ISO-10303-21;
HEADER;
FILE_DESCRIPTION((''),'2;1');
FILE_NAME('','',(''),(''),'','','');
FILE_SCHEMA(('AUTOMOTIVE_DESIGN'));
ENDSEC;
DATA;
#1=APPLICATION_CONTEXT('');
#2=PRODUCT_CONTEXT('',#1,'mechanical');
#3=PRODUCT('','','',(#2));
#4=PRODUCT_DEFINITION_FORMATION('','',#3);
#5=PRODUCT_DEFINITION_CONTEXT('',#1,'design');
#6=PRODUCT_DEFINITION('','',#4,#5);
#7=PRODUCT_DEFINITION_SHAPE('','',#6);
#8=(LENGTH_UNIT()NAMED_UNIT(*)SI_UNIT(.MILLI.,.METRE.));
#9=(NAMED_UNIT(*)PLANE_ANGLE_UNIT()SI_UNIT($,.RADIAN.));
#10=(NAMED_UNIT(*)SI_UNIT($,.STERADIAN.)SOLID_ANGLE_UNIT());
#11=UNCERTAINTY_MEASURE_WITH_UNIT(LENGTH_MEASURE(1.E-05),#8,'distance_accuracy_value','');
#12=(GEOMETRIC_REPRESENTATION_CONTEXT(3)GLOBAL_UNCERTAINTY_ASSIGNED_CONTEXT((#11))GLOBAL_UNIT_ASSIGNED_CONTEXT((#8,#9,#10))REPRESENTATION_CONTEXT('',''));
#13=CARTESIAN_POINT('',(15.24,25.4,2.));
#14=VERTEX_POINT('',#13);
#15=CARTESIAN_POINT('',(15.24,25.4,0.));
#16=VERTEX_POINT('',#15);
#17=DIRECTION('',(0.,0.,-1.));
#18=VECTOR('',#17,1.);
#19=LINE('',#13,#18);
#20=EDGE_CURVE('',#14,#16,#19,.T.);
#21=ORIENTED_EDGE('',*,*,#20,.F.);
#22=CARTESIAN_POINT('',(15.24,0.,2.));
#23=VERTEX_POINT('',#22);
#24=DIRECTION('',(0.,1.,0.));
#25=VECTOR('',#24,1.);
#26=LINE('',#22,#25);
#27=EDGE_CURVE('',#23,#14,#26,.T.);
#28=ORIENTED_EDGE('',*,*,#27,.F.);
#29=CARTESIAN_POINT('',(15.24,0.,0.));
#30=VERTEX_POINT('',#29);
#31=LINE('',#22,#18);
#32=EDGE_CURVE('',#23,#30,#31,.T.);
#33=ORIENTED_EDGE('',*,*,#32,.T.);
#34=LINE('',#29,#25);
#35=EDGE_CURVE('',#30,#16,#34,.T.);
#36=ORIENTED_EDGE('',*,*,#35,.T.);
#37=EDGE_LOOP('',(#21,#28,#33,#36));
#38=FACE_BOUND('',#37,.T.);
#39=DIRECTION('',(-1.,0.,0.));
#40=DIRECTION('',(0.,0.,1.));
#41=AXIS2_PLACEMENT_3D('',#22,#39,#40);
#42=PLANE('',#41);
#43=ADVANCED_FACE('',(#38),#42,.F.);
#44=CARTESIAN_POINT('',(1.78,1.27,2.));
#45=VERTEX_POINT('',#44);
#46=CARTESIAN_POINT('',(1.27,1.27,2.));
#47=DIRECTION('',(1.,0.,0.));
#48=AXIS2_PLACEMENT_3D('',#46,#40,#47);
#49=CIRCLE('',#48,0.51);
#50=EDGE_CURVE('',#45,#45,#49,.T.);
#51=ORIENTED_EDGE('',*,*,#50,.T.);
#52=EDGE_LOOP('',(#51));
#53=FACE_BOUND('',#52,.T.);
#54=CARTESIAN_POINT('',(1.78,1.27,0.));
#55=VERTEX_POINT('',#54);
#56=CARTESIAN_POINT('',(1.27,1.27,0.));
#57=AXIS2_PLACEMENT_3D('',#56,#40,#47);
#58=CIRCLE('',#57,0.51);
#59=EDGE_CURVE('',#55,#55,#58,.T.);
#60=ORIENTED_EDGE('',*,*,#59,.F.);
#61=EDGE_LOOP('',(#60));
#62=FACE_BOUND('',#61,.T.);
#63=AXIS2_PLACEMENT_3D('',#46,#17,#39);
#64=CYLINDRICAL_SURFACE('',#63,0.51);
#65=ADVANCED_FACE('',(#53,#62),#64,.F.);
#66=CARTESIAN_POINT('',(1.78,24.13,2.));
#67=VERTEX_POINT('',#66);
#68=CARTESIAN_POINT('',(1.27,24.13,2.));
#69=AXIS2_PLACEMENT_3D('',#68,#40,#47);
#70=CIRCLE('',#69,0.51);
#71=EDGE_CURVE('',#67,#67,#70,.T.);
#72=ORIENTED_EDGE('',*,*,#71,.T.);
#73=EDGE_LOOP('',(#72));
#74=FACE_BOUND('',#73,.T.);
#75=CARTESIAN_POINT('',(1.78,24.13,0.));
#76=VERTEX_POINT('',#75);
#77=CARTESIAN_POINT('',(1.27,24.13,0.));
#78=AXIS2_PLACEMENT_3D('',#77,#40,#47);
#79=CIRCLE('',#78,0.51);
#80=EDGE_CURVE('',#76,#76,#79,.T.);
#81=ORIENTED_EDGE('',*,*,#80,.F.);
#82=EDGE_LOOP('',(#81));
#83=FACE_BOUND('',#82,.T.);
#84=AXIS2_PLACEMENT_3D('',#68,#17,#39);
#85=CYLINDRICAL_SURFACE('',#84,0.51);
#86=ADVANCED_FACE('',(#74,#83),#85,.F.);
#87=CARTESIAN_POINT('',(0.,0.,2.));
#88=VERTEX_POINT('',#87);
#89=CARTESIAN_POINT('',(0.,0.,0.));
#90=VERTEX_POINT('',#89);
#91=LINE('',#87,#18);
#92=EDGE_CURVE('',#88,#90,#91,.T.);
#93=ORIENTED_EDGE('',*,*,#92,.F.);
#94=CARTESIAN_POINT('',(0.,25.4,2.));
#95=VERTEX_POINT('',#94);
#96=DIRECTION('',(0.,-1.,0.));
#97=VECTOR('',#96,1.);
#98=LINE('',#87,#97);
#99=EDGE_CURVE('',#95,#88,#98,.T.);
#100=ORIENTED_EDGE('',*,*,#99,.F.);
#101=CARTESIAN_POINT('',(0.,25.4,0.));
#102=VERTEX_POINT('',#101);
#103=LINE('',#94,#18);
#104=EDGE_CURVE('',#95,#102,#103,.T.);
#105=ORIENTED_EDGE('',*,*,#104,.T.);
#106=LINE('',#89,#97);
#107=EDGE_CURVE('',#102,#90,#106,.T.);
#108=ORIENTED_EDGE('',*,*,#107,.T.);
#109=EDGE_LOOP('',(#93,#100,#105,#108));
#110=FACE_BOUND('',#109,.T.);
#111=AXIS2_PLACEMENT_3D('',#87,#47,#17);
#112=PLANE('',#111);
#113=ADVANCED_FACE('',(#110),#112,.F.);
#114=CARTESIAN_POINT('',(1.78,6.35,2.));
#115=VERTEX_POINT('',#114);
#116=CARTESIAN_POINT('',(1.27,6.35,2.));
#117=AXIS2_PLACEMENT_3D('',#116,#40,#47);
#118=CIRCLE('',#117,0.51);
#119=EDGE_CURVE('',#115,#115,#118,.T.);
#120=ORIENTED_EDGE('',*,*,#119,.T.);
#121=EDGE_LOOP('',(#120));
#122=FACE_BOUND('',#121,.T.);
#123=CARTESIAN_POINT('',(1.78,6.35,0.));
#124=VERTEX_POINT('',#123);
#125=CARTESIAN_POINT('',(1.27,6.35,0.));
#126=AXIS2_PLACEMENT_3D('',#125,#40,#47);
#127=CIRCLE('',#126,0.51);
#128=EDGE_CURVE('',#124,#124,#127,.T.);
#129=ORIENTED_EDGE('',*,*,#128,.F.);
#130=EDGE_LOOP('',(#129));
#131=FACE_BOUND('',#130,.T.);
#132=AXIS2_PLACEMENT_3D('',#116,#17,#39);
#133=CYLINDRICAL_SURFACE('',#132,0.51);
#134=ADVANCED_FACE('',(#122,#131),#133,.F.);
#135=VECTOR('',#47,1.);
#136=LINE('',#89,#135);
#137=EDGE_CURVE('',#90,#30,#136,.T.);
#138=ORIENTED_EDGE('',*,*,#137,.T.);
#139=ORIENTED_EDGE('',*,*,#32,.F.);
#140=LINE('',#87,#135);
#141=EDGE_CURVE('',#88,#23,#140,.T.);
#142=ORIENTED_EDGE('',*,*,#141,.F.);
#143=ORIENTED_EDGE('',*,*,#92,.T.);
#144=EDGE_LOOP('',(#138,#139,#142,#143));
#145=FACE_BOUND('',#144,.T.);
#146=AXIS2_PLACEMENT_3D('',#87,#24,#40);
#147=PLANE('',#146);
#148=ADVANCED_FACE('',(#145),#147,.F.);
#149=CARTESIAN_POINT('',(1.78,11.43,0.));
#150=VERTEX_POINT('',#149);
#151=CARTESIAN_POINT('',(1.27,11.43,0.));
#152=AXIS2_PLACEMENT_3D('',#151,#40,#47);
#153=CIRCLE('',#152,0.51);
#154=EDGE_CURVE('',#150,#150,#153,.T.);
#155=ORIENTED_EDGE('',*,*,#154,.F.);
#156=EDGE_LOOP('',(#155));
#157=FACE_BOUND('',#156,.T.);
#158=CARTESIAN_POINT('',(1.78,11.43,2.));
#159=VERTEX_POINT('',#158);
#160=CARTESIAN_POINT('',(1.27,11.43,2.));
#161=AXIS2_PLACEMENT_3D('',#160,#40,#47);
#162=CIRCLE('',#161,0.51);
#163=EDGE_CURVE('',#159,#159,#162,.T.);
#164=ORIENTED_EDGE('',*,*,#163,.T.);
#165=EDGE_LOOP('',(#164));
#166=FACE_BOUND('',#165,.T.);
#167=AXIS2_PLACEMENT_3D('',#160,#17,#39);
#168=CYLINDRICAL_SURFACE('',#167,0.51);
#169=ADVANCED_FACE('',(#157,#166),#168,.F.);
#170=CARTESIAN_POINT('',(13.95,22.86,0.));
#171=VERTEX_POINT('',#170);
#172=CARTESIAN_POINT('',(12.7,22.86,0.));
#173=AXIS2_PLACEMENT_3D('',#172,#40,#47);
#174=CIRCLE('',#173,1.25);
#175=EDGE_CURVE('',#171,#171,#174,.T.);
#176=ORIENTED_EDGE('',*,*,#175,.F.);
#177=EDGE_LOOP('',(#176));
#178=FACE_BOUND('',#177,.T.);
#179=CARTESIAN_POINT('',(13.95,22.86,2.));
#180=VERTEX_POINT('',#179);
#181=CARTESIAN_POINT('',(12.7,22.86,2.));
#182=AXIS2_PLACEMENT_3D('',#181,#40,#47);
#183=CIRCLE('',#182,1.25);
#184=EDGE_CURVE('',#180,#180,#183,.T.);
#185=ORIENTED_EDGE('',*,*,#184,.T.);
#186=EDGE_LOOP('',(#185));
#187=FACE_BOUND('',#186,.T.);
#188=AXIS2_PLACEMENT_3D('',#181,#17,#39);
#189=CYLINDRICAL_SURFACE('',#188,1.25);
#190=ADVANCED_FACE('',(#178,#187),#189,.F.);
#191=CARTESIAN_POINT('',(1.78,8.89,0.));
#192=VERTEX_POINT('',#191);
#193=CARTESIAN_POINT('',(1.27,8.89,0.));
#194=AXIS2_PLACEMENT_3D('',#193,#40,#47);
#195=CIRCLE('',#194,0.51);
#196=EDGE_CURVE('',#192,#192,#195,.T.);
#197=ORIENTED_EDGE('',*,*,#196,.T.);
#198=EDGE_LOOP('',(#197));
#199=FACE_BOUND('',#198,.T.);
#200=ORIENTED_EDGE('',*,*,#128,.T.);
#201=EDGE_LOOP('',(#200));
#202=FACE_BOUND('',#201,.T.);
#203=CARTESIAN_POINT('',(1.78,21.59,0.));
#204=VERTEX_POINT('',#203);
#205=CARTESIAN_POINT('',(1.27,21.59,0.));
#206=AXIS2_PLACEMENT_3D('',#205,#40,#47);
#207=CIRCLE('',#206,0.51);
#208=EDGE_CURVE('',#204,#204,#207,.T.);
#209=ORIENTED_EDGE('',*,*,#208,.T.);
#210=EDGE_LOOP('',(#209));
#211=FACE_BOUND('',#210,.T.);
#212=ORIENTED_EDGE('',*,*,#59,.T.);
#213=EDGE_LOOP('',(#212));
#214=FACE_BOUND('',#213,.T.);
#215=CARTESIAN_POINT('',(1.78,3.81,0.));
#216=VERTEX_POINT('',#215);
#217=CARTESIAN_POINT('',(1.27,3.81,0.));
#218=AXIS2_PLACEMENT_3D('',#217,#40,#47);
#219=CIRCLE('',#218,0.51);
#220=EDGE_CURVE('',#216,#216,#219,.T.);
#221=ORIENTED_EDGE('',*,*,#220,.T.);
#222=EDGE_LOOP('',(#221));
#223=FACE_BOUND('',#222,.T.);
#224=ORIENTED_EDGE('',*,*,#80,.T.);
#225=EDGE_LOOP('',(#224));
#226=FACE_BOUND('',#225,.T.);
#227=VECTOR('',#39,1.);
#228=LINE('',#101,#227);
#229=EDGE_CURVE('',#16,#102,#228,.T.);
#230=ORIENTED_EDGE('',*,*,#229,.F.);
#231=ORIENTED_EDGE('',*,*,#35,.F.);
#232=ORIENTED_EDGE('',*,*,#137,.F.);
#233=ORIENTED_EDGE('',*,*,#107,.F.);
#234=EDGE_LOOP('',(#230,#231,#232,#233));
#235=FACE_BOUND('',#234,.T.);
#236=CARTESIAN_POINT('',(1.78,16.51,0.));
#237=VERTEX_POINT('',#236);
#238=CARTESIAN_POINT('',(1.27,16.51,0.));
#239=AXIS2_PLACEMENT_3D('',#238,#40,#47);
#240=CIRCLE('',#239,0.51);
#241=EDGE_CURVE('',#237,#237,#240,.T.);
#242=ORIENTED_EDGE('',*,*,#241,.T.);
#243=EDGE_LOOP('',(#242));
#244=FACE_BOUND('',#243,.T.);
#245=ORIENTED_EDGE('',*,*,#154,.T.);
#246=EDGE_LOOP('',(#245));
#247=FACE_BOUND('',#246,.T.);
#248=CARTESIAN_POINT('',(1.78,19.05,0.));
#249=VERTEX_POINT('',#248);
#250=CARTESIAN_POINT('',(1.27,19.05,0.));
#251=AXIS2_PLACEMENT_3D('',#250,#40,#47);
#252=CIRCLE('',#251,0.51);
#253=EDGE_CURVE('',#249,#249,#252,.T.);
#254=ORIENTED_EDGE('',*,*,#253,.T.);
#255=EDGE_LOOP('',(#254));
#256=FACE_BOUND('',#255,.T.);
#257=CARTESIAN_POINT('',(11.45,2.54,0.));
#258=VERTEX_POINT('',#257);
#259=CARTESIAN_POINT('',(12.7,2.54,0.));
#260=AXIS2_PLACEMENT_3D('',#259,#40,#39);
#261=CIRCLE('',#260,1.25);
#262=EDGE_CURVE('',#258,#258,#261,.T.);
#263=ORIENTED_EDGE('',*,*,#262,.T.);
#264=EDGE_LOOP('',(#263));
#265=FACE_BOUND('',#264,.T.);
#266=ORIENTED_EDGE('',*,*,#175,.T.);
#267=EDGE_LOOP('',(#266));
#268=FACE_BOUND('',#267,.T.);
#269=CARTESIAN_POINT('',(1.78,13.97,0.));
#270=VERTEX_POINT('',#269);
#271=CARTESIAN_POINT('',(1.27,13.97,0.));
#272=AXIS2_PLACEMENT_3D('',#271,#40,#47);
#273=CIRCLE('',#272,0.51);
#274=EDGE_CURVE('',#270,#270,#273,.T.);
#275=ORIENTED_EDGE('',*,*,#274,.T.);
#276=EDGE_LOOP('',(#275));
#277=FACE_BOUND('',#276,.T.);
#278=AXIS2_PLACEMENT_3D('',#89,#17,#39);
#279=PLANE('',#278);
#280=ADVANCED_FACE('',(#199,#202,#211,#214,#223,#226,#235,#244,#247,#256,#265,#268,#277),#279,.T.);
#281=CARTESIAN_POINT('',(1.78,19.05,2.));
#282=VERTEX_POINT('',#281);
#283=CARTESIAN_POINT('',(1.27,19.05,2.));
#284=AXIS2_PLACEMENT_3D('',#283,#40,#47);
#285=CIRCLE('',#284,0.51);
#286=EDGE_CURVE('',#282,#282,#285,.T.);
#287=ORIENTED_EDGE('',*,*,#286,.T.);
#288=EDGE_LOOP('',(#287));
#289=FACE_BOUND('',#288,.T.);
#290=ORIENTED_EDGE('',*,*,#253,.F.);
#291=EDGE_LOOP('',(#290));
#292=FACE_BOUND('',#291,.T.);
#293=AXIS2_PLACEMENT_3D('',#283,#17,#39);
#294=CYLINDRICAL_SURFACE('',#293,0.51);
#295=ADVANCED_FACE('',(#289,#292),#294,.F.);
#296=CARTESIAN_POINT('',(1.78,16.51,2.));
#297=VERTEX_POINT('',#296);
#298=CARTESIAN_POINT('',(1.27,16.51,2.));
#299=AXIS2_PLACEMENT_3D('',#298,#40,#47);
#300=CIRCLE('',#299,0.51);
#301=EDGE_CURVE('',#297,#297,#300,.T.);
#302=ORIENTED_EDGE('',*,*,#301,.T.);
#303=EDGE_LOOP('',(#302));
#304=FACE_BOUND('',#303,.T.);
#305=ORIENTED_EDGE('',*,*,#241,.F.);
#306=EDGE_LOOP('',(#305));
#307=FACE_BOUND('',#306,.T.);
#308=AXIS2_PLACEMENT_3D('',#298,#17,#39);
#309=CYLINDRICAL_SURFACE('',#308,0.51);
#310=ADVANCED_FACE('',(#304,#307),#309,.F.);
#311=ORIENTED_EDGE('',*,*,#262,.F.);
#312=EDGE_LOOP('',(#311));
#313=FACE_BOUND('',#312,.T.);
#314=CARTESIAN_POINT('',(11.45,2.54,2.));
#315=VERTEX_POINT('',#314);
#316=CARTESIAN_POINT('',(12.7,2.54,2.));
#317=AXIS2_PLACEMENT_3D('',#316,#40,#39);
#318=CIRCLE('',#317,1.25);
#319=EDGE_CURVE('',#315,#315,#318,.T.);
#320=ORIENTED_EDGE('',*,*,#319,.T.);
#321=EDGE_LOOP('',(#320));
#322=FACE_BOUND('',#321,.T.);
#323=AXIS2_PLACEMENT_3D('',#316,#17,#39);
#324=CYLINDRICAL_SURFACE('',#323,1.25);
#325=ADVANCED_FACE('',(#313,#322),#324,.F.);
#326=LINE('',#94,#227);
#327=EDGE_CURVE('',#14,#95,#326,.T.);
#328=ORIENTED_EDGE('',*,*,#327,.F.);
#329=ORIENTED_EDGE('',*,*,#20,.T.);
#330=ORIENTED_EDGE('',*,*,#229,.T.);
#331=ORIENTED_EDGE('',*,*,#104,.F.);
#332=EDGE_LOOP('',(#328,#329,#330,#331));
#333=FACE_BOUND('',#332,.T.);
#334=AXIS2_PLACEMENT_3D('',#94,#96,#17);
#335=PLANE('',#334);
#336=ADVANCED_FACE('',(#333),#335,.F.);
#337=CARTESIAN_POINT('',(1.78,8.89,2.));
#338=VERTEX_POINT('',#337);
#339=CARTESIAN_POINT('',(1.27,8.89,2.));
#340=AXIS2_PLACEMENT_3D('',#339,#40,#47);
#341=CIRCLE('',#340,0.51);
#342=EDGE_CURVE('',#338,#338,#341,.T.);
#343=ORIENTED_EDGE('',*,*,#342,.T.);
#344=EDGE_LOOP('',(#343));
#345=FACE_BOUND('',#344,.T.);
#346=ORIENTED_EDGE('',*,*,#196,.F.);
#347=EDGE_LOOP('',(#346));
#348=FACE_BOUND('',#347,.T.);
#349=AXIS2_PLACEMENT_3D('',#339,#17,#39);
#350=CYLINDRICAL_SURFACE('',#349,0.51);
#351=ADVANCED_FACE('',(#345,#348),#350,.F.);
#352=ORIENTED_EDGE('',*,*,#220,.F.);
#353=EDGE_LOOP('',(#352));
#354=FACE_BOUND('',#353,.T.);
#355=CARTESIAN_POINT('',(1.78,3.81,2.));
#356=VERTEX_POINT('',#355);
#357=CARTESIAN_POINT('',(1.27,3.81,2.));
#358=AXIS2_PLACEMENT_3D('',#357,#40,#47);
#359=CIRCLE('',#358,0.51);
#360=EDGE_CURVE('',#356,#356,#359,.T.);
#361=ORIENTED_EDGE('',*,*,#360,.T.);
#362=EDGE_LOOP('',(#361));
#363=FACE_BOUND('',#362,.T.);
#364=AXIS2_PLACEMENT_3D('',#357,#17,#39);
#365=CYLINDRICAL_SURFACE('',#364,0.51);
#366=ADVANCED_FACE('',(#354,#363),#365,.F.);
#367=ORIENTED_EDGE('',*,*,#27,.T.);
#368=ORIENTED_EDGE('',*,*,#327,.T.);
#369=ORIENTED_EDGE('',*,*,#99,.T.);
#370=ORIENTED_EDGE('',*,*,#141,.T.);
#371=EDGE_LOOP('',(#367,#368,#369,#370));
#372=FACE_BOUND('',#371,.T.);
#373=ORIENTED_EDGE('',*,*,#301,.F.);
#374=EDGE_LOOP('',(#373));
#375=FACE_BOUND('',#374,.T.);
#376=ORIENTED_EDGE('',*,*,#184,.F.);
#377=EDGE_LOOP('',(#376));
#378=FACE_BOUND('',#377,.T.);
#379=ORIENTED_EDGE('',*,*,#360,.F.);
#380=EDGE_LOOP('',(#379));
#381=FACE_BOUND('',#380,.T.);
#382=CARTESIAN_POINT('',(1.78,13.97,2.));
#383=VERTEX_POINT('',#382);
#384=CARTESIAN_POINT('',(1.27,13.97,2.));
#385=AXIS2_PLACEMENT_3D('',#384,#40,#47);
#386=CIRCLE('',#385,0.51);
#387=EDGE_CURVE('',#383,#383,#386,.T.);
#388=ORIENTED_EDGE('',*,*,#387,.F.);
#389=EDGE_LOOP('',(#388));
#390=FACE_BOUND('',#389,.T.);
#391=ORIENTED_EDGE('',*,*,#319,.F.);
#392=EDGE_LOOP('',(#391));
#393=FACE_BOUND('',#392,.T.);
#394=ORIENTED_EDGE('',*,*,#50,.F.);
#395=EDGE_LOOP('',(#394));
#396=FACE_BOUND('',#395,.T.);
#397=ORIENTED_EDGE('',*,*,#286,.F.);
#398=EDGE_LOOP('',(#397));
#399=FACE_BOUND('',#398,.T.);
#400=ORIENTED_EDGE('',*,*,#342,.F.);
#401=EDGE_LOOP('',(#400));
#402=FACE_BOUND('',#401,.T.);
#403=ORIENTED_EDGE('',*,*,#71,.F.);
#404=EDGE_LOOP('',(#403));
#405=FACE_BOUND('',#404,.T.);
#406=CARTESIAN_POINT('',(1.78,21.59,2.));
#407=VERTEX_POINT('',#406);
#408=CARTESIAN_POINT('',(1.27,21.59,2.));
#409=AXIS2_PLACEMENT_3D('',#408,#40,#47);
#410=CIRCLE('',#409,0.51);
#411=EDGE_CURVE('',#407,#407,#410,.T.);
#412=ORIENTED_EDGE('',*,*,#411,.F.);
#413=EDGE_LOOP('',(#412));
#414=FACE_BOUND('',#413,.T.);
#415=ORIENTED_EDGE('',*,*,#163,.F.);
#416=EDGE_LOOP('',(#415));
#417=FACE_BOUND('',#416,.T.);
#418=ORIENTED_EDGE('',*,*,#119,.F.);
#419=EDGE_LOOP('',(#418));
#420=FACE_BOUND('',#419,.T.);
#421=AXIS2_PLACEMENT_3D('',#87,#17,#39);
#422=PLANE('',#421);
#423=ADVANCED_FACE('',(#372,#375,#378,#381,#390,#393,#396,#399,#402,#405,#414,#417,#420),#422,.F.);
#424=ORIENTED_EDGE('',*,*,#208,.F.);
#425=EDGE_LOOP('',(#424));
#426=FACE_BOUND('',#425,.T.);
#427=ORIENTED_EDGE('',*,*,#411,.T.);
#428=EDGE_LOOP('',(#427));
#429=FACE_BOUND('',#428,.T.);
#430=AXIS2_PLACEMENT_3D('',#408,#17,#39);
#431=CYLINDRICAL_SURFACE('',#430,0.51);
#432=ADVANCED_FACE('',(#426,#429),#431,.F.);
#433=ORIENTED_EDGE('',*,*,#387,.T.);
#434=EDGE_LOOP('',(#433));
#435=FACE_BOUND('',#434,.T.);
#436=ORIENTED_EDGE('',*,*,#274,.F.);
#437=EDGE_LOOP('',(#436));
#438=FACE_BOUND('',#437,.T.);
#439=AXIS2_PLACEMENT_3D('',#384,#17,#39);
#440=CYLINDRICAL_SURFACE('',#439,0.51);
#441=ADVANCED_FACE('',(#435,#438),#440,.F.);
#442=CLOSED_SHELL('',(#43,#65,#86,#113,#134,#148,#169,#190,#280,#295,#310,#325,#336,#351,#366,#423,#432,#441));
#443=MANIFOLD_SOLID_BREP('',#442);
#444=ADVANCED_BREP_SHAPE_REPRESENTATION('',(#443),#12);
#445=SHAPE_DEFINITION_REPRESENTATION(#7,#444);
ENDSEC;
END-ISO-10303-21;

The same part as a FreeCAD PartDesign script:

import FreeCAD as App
import Part
import Sketcher

doc = App.newDocument("Part")
body = doc.addObject("PartDesign::Body", "Body")

sketch1 = body.newObject("Sketcher::SketchObject", "Sketch")
sketch1.AttachmentSupport = (doc.getObject("XY_Plane"), [""])
sketch1.MapMode = "FlatFace"
sketch1.addGeometry([
    Part.LineSegment(App.Vector(0, 25.4, 0), App.Vector(0, 0, 0)),
    Part.LineSegment(App.Vector(0, 0, 0), App.Vector(15.2, 0, 0)),
    Part.LineSegment(App.Vector(15.2, 0, 0), App.Vector(15.2, 25.4, 0)),
    Part.LineSegment(App.Vector(15.2, 25.4, 0), App.Vector(0, 25.4, 0)),
    Part.Circle(App.Vector(1.3, 1.3, 0), App.Vector(0, 0, 1), 0.5),
    Part.Circle(App.Vector(1.3, 3.8, 0), App.Vector(0, 0, 1), 0.5),
    Part.Circle(App.Vector(1.3, 6.3, 0), App.Vector(0, 0, 1), 0.5),
    Part.Circle(App.Vector(1.3, 8.9, 0), App.Vector(0, 0, 1), 0.5),
    Part.Circle(App.Vector(1.3, 11.4, 0), App.Vector(0, 0, 1), 0.5),
    Part.Circle(App.Vector(12.7, 2.5, 0), App.Vector(0, 0, 1), 1.2),
    Part.Circle(App.Vector(1.3, 14, 0), App.Vector(0, 0, 1), 0.5),
    Part.Circle(App.Vector(1.3, 16.5, 0), App.Vector(0, 0, 1), 0.5),
    Part.Circle(App.Vector(1.3, 19.1, 0), App.Vector(0, 0, 1), 0.5),
    Part.Circle(App.Vector(1.3, 21.6, 0), App.Vector(0, 0, 1), 0.5),
    Part.Circle(App.Vector(1.3, 24.1, 0), App.Vector(0, 0, 1), 0.5),
    Part.Circle(App.Vector(12.7, 22.9, 0), App.Vector(0, 0, 1), 1.2),
], False)
sketch1.addConstraint([
    Sketcher.Constraint("Coincident", 0, 2, 1, 1),
    Sketcher.Constraint("Coincident", 1, 2, 2, 1),
    Sketcher.Constraint("Coincident", 2, 2, 3, 1),
    Sketcher.Constraint("Coincident", 3, 2, 0, 1),
    Sketcher.Constraint("Vertical", 0),
    Sketcher.Constraint("Horizontal", 1),
    Sketcher.Constraint("Vertical", 2),
    Sketcher.Constraint("Horizontal", 3),
    Sketcher.Constraint("Coincident", 0, 2, -1, 1),
    Sketcher.Constraint("Equal", 4, 5),
    Sketcher.Constraint("Equal", 5, 6),
    Sketcher.Constraint("Equal", 6, 7),
    Sketcher.Constraint("Equal", 7, 8),
    Sketcher.Constraint("Equal", 8, 10),
    Sketcher.Constraint("Equal", 10, 11),
    Sketcher.Constraint("Equal", 11, 12),
    Sketcher.Constraint("Equal", 12, 13),
    Sketcher.Constraint("Equal", 13, 14),
    Sketcher.Constraint("Equal", 9, 15),
    Sketcher.Constraint("Vertical", 4, 3, 5, 3),
    Sketcher.Constraint("Vertical", 5, 3, 6, 3),
    Sketcher.Constraint("Vertical", 6, 3, 7, 3),
    Sketcher.Constraint("Vertical", 7, 3, 8, 3),
    Sketcher.Constraint("Vertical", 8, 3, 10, 3),
    Sketcher.Constraint("Vertical", 10, 3, 11, 3),
    Sketcher.Constraint("Vertical", 11, 3, 12, 3),
    Sketcher.Constraint("Vertical", 12, 3, 13, 3),
    Sketcher.Constraint("Vertical", 13, 3, 14, 3),
    Sketcher.Constraint("Vertical", 9, 3, 15, 3),
    Sketcher.Constraint("Diameter", 9, 2.5),
    Sketcher.Constraint("Diameter", 4, 1.02),
    Sketcher.Constraint("DistanceY", 0, 2, 0, 1, 25.4),
    Sketcher.Constraint("DistanceX", 1, 1, 1, 2, 15.24),
    Sketcher.Constraint("DistanceX", -1, 1, 9, 3, 12.7),
    Sketcher.Constraint("DistanceY", 4, 3, 10, 3, 12.7),
    Sketcher.Constraint("DistanceY", 5, 3, 11, 3, 12.7),
    Sketcher.Constraint("DistanceY", 6, 3, 12, 3, 12.7),
    Sketcher.Constraint("DistanceY", 7, 3, 13, 3, 12.7),
    Sketcher.Constraint("DistanceY", 8, 3, 14, 3, 12.7),
    Sketcher.Constraint("DistanceX", -1, 1, 4, 3, 1.27),
    Sketcher.Constraint("DistanceY", -1, 1, 4, 3, 1.27),
    Sketcher.Constraint("DistanceY", -1, 1, 5, 3, 3.81),
    Sketcher.Constraint("DistanceY", -1, 1, 6, 3, 6.35),
    Sketcher.Constraint("DistanceY", -1, 1, 7, 3, 8.89),
    Sketcher.Constraint("DistanceY", -1, 1, 8, 3, 11.43),
    Sketcher.Constraint("DistanceY", -1, 1, 9, 3, 2.54),
    Sketcher.Constraint("DistanceY", -1, 1, 15, 3, 22.86),
])
pad1 = body.newObject("PartDesign::Pad", "Pad")
pad1.Profile = sketch1
pad1.Length = 2

doc.recompute()
